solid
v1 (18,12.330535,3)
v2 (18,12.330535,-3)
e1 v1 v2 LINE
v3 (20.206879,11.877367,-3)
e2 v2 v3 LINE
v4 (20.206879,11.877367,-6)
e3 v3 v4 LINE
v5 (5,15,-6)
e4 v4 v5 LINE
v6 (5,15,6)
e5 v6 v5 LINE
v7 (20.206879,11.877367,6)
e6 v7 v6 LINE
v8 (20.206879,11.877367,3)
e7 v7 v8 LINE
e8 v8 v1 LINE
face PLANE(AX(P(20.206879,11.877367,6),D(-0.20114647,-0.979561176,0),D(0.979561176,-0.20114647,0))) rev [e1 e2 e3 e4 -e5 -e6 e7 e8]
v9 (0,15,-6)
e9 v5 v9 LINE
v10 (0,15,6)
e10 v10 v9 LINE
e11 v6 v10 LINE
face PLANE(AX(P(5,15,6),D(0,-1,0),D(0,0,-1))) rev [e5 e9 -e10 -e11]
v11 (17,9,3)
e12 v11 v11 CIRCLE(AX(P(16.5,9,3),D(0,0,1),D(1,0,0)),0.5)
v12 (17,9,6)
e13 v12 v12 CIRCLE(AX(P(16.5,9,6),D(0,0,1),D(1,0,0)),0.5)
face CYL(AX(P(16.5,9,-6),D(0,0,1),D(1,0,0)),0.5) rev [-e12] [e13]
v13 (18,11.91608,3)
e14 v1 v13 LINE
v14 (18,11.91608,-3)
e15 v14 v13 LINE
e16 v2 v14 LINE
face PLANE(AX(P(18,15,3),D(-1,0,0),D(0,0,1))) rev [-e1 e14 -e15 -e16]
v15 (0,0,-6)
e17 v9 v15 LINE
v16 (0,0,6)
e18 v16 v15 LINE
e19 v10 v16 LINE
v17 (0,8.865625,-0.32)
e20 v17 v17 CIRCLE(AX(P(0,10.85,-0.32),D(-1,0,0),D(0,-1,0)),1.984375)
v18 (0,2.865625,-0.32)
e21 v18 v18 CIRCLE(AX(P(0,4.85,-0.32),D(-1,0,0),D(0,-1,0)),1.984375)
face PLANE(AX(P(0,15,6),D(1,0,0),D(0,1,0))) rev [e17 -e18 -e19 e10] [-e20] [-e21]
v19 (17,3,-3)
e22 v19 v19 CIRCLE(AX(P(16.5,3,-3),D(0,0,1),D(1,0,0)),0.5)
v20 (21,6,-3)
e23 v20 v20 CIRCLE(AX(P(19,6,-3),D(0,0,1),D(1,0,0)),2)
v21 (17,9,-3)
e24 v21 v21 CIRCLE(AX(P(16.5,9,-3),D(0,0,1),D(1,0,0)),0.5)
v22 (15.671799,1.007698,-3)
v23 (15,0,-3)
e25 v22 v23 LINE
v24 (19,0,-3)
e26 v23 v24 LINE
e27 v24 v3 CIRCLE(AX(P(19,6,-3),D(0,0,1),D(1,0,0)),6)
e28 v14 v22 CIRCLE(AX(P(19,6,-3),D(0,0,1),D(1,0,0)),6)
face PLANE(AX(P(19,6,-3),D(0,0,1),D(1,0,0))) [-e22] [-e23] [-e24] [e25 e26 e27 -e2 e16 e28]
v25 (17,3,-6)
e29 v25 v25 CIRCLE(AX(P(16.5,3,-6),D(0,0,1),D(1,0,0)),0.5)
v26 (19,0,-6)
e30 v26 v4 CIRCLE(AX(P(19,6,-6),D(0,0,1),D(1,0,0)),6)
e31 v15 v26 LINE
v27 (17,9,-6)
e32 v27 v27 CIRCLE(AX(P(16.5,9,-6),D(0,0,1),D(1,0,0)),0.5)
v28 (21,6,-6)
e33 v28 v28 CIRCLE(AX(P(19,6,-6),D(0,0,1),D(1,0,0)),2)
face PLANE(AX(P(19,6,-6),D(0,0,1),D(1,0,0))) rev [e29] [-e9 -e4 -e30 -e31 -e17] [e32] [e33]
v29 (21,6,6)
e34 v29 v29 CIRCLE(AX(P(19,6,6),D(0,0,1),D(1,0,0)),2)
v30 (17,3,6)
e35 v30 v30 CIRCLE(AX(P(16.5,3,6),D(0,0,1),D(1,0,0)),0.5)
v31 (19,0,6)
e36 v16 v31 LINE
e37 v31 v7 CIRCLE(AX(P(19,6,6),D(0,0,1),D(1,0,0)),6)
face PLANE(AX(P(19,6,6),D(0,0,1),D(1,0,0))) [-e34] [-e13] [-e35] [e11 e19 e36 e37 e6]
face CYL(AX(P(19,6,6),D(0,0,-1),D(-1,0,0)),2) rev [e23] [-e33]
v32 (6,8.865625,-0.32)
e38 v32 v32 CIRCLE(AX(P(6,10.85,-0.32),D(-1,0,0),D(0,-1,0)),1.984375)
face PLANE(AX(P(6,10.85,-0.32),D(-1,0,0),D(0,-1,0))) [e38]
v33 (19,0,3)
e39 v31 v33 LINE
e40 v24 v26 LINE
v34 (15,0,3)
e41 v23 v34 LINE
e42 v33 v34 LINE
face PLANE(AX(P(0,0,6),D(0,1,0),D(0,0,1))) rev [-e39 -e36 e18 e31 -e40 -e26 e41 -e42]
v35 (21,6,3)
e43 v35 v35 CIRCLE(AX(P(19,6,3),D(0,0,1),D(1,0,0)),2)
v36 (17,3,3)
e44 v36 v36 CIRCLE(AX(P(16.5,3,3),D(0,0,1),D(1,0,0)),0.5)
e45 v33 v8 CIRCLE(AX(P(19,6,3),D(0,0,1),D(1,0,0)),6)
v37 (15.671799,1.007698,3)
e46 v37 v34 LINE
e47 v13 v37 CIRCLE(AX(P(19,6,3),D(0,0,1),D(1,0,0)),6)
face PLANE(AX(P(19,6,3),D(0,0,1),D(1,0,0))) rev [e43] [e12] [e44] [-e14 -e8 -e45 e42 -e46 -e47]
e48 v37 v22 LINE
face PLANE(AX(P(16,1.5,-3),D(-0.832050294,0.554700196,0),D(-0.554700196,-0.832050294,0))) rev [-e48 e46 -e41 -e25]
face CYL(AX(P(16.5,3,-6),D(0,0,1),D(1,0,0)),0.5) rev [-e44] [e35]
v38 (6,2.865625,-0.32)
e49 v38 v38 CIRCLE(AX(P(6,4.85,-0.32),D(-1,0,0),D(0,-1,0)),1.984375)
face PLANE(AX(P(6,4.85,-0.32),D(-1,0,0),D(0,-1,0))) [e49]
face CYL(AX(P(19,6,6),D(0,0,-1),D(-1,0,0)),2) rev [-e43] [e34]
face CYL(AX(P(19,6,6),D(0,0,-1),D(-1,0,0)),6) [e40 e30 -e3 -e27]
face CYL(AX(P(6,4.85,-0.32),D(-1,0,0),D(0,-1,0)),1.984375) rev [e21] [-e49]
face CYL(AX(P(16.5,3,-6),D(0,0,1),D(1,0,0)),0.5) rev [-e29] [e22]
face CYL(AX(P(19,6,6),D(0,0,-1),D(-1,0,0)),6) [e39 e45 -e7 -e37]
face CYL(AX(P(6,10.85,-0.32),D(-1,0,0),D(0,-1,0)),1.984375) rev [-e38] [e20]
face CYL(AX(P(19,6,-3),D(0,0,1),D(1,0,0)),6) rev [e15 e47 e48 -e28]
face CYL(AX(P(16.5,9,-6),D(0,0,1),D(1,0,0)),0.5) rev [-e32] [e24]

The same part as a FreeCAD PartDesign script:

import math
import FreeCAD as App
import Part
import Sketcher

V = App.Vector


def add_polygon(sketch, points):
    """Adds a closed chain of lines whose ends are joined by coincident constraints."""
    first, n = sketch.GeometryCount, len(points)
    for a, b in zip(points, points[1:] + points[:1]):
        sketch.addGeometry(Part.LineSegment(App.Vector(*a, 0), App.Vector(*b, 0)), False)
    for i in range(n):
        sketch.addConstraint(Sketcher.Constraint("Coincident", first + i, 2, first + (i + 1) % n, 1))

doc = App.newDocument("Part")
body = doc.addObject("PartDesign::Body", "Body")

sketch1 = doc.addObject("Sketcher::SketchObject", "Sketch")
body.addObject(sketch1)
sketch1.AttachmentSupport = (doc.XY_Plane, [""])
sketch1.MapMode = "FlatFace"
sketch1.addGeometry([
    Part.LineSegment(V(0, 0, 0), V(19, 0, 0)),
    Part.ArcOfCircle(Part.Circle(V(19, 6, 0), V(0, 0, 1), 6), math.radians(-90), math.radians(78)),
    Part.LineSegment(V(20.2, 11.9, 0), V(5, 15, 0)),
    Part.LineSegment(V(5, 15, 0), V(0, 15, 0)),
    Part.LineSegment(V(0, 15, 0), V(0, 0, 0)),
    Part.Circle(V(19, 6, 0), V(0, 0, 1), 2),
], False)
sketch1.addConstraint([
    Sketcher.Constraint("Tangent", 0, 2, 1, 1),
    Sketcher.Constraint("Tangent", 1, 2, 2, 1),
    Sketcher.Constraint("Coincident", 2, 2, 3, 1),
    Sketcher.Constraint("Coincident", 3, 2, 4, 1),
    Sketcher.Constraint("Coincident", 4, 2, 0, 1),
    Sketcher.Constraint("Horizontal", 0),
    Sketcher.Constraint("Horizontal", 3),
    Sketcher.Constraint("Vertical", 4),
    Sketcher.Constraint("Coincident", 4, 2, -1, 1),
    Sketcher.Constraint("Coincident", 5, 3, 1, 3),
    Sketcher.Constraint("Diameter", 5, 4.0),
    Sketcher.Constraint("Radius", 1, 6.0),
    Sketcher.Constraint("DistanceX", 0, 1, 0, 2, 19.0),
    Sketcher.Constraint("DistanceX", 3, 2, 3, 1, 5.0),
    Sketcher.Constraint("DistanceY", 4, 2, 4, 1, 15.0),
])
pad1 = doc.addObject("PartDesign::Pad", "Pad")
body.addObject(pad1)
pad1.Profile = sketch1
pad1.Length = 12
pad1.Midplane = True

sketch2 = doc.addObject("Sketcher::SketchObject", "Sketch001")
body.addObject(sketch2)
sketch2.AttachmentSupport = (doc.XY_Plane, [""])
sketch2.MapMode = "FlatFace"
sketch2.addGeometry(Part.Circle(V(19, 6, 0), V(0, 0, 1), 6), False)
sketch2.addConstraint([
    Sketcher.Constraint("Diameter", 0, 12.0),
    Sketcher.Constraint("DistanceX", -1, 1, 0, 3, 19.0),
    Sketcher.Constraint("DistanceY", -1, 1, 0, 3, 6.0),
])
pocket1 = doc.addObject("PartDesign::Pocket", "Pocket")
body.addObject(pocket1)
pocket1.Profile = sketch2
pocket1.Length = 6
pocket1.Midplane = True

sketch3 = doc.addObject("Sketcher::SketchObject", "Sketch002")
body.addObject(sketch3)
sketch3.AttachmentSupport = (doc.YZ_Plane, [""])
sketch3.MapMode = "FlatFace"
sketch3.addGeometry([
    Part.Circle(V(10.8, -0.3, 0), V(0, 0, 1), 2),
    Part.Circle(V(4.8, -0.3, 0), V(0, 0, 1), 2),
], False)
sketch3.addConstraint([
    Sketcher.Constraint("Equal", 0, 1),
    Sketcher.Constraint("Horizontal", 0, 3, 1, 3),
    Sketcher.Constraint("DistanceX", 1, 3, 0, 3, 6.0),
    Sketcher.Constraint("Diameter", 0, 3.96875),
    Sketcher.Constraint("DistanceX", -1, 1, 0, 3, 10.85),
    Sketcher.Constraint("DistanceY", 0, 3, -1, 1, 0.32),
])
pocket2 = doc.addObject("PartDesign::Pocket", "Pocket001")
body.addObject(pocket2)
pocket2.Profile = sketch3
pocket2.Length = 6
pocket2.Reversed = True

sketch4 = doc.addObject("Sketcher::SketchObject", "Sketch003")
body.addObject(sketch4)
sketch4.AttachmentSupport = (doc.XZ_Plane, [""])
sketch4.MapMode = "FlatFace"
add_polygon(sketch4, [(18, 3), (18, -3), (33, -3), (33, 3)])
sketch4.addConstraint([
    Sketcher.Constraint("Vertical", 0),
    Sketcher.Constraint("Horizontal", 1),
    Sketcher.Constraint("Vertical", 2),
    Sketcher.Constraint("Horizontal", 3),
    Sketcher.Constraint("DistanceY", 0, 2, 0, 1, 6.0),
    Sketcher.Constraint("DistanceX", -1, 1, 0, 2, 18.0),
    Sketcher.Constraint("DistanceY", 0, 2, -1, 1, 3.0),
    Sketcher.Constraint("DistanceX", 1, 1, 1, 2, 15.01382),
])
pocket3 = doc.addObject("PartDesign::Pocket", "Pocket002")
body.addObject(pocket3)
pocket3.Profile = sketch4
pocket3.Type = "ThroughAll"

sketch5 = doc.addObject("Sketcher::SketchObject", "Sketch004")
body.addObject(sketch5)
sketch5.AttachmentSupport = (doc.XY_Plane, [""])
sketch5.MapMode = "FlatFace"
sketch5.AttachmentOffset = App.Placement(V(0, 0, 6), App.Rotation())
sketch5.addGeometry([
    Part.Circle(V(16.5, 3, 0), V(0, 0, 1), 0.5),
    Part.Circle(V(16.5, 9, 0), V(0, 0, 1), 0.5),
], False)
sketch5.addConstraint([
    Sketcher.Constraint("Equal", 0, 1),
    Sketcher.Constraint("Vertical", 0, 3, 1, 3),
    Sketcher.Constraint("Diameter", 0, 1.0),
    Sketcher.Constraint("DistanceY", -1, 1, 0, 3, 3.0),
    Sketcher.Constraint("DistanceY", -1, 1, 1, 3, 9.0),
    Sketcher.Constraint("DistanceX", -1, 1, 0, 3, 16.5),
])
pocket4 = doc.addObject("PartDesign::Pocket", "Pocket003")
body.addObject(pocket4)
pocket4.Profile = sketch5
pocket4.Type = "ThroughAll"

sketch6 = doc.addObject("Sketcher::SketchObject", "Sketch005")
body.addObject(sketch6)
sketch6.AttachmentSupport = (doc.XY_Plane, [""])
sketch6.MapMode = "FlatFace"
add_polygon(sketch6, [(18, 0), (18, 1.5), (16, 1.5), (15, 0)])
sketch6.addConstraint([
    Sketcher.Constraint("Vertical", 0),
    Sketcher.Constraint("Horizontal", 1),
    Sketcher.Constraint("Horizontal", 3),
    Sketcher.Constraint("PointOnObject", 2, 2, -1),
    Sketcher.Constraint("DistanceX", 1, 2, 1, 1, 2.0),
    Sketcher.Constraint("DistanceX", 3, 1, 3, 2, 3.0),
    Sketcher.Constraint("DistanceY", 0, 1, 0, 2, 1.5),
    Sketcher.Constraint("DistanceX", -1, 1, 0, 2, 18.0),
])
pocket5 = doc.addObject("PartDesign::Pocket", "Pocket004")
body.addObject(pocket5)
pocket5.Profile = sketch6
pocket5.Length = 6
pocket5.Midplane = True

doc.recompute()
